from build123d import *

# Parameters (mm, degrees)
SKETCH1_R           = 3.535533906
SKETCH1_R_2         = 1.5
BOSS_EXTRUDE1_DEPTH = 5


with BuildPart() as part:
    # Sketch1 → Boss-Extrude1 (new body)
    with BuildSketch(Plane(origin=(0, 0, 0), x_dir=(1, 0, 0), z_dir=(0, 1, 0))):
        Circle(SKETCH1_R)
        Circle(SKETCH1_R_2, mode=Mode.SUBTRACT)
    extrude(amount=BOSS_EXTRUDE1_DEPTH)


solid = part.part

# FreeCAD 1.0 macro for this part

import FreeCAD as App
import Part
import Sketcher
Q = App.Units.Quantity

doc = App.newDocument("Part")
body = doc.addObject("PartDesign::Body", "Body")

# Sketch on XZ plane
sketch1 = body.newObject("Sketcher::SketchObject", "Sketch")
sketch1.AttachmentSupport = (doc.getObject("XZ_Plane"), [""])
sketch1.MapMode = "FlatFace"
sketch1.addGeometry([
    Part.Circle(App.Vector(0, 0, 0), App.Vector(0, 0, 1), 3.5),
    Part.Circle(App.Vector(0, 0, 0), App.Vector(0, 0, 1), 1.5),
], False)
sketch1.addConstraint([
    Sketcher.Constraint("Coincident", 0, 3, -1, 1),
    Sketcher.Constraint("Coincident", 1, 3, -1, 1),
    Sketcher.Constraint("Diameter", 1, Q("3 mm")),
    Sketcher.Constraint("Diameter", 0, Q("7.071068 mm")),
])
pad1 = body.newObject("PartDesign::Pad", "Pad")
pad1.Profile = sketch1
pad1.Length = 5
pad1.Reversed = True

doc.recompute()
